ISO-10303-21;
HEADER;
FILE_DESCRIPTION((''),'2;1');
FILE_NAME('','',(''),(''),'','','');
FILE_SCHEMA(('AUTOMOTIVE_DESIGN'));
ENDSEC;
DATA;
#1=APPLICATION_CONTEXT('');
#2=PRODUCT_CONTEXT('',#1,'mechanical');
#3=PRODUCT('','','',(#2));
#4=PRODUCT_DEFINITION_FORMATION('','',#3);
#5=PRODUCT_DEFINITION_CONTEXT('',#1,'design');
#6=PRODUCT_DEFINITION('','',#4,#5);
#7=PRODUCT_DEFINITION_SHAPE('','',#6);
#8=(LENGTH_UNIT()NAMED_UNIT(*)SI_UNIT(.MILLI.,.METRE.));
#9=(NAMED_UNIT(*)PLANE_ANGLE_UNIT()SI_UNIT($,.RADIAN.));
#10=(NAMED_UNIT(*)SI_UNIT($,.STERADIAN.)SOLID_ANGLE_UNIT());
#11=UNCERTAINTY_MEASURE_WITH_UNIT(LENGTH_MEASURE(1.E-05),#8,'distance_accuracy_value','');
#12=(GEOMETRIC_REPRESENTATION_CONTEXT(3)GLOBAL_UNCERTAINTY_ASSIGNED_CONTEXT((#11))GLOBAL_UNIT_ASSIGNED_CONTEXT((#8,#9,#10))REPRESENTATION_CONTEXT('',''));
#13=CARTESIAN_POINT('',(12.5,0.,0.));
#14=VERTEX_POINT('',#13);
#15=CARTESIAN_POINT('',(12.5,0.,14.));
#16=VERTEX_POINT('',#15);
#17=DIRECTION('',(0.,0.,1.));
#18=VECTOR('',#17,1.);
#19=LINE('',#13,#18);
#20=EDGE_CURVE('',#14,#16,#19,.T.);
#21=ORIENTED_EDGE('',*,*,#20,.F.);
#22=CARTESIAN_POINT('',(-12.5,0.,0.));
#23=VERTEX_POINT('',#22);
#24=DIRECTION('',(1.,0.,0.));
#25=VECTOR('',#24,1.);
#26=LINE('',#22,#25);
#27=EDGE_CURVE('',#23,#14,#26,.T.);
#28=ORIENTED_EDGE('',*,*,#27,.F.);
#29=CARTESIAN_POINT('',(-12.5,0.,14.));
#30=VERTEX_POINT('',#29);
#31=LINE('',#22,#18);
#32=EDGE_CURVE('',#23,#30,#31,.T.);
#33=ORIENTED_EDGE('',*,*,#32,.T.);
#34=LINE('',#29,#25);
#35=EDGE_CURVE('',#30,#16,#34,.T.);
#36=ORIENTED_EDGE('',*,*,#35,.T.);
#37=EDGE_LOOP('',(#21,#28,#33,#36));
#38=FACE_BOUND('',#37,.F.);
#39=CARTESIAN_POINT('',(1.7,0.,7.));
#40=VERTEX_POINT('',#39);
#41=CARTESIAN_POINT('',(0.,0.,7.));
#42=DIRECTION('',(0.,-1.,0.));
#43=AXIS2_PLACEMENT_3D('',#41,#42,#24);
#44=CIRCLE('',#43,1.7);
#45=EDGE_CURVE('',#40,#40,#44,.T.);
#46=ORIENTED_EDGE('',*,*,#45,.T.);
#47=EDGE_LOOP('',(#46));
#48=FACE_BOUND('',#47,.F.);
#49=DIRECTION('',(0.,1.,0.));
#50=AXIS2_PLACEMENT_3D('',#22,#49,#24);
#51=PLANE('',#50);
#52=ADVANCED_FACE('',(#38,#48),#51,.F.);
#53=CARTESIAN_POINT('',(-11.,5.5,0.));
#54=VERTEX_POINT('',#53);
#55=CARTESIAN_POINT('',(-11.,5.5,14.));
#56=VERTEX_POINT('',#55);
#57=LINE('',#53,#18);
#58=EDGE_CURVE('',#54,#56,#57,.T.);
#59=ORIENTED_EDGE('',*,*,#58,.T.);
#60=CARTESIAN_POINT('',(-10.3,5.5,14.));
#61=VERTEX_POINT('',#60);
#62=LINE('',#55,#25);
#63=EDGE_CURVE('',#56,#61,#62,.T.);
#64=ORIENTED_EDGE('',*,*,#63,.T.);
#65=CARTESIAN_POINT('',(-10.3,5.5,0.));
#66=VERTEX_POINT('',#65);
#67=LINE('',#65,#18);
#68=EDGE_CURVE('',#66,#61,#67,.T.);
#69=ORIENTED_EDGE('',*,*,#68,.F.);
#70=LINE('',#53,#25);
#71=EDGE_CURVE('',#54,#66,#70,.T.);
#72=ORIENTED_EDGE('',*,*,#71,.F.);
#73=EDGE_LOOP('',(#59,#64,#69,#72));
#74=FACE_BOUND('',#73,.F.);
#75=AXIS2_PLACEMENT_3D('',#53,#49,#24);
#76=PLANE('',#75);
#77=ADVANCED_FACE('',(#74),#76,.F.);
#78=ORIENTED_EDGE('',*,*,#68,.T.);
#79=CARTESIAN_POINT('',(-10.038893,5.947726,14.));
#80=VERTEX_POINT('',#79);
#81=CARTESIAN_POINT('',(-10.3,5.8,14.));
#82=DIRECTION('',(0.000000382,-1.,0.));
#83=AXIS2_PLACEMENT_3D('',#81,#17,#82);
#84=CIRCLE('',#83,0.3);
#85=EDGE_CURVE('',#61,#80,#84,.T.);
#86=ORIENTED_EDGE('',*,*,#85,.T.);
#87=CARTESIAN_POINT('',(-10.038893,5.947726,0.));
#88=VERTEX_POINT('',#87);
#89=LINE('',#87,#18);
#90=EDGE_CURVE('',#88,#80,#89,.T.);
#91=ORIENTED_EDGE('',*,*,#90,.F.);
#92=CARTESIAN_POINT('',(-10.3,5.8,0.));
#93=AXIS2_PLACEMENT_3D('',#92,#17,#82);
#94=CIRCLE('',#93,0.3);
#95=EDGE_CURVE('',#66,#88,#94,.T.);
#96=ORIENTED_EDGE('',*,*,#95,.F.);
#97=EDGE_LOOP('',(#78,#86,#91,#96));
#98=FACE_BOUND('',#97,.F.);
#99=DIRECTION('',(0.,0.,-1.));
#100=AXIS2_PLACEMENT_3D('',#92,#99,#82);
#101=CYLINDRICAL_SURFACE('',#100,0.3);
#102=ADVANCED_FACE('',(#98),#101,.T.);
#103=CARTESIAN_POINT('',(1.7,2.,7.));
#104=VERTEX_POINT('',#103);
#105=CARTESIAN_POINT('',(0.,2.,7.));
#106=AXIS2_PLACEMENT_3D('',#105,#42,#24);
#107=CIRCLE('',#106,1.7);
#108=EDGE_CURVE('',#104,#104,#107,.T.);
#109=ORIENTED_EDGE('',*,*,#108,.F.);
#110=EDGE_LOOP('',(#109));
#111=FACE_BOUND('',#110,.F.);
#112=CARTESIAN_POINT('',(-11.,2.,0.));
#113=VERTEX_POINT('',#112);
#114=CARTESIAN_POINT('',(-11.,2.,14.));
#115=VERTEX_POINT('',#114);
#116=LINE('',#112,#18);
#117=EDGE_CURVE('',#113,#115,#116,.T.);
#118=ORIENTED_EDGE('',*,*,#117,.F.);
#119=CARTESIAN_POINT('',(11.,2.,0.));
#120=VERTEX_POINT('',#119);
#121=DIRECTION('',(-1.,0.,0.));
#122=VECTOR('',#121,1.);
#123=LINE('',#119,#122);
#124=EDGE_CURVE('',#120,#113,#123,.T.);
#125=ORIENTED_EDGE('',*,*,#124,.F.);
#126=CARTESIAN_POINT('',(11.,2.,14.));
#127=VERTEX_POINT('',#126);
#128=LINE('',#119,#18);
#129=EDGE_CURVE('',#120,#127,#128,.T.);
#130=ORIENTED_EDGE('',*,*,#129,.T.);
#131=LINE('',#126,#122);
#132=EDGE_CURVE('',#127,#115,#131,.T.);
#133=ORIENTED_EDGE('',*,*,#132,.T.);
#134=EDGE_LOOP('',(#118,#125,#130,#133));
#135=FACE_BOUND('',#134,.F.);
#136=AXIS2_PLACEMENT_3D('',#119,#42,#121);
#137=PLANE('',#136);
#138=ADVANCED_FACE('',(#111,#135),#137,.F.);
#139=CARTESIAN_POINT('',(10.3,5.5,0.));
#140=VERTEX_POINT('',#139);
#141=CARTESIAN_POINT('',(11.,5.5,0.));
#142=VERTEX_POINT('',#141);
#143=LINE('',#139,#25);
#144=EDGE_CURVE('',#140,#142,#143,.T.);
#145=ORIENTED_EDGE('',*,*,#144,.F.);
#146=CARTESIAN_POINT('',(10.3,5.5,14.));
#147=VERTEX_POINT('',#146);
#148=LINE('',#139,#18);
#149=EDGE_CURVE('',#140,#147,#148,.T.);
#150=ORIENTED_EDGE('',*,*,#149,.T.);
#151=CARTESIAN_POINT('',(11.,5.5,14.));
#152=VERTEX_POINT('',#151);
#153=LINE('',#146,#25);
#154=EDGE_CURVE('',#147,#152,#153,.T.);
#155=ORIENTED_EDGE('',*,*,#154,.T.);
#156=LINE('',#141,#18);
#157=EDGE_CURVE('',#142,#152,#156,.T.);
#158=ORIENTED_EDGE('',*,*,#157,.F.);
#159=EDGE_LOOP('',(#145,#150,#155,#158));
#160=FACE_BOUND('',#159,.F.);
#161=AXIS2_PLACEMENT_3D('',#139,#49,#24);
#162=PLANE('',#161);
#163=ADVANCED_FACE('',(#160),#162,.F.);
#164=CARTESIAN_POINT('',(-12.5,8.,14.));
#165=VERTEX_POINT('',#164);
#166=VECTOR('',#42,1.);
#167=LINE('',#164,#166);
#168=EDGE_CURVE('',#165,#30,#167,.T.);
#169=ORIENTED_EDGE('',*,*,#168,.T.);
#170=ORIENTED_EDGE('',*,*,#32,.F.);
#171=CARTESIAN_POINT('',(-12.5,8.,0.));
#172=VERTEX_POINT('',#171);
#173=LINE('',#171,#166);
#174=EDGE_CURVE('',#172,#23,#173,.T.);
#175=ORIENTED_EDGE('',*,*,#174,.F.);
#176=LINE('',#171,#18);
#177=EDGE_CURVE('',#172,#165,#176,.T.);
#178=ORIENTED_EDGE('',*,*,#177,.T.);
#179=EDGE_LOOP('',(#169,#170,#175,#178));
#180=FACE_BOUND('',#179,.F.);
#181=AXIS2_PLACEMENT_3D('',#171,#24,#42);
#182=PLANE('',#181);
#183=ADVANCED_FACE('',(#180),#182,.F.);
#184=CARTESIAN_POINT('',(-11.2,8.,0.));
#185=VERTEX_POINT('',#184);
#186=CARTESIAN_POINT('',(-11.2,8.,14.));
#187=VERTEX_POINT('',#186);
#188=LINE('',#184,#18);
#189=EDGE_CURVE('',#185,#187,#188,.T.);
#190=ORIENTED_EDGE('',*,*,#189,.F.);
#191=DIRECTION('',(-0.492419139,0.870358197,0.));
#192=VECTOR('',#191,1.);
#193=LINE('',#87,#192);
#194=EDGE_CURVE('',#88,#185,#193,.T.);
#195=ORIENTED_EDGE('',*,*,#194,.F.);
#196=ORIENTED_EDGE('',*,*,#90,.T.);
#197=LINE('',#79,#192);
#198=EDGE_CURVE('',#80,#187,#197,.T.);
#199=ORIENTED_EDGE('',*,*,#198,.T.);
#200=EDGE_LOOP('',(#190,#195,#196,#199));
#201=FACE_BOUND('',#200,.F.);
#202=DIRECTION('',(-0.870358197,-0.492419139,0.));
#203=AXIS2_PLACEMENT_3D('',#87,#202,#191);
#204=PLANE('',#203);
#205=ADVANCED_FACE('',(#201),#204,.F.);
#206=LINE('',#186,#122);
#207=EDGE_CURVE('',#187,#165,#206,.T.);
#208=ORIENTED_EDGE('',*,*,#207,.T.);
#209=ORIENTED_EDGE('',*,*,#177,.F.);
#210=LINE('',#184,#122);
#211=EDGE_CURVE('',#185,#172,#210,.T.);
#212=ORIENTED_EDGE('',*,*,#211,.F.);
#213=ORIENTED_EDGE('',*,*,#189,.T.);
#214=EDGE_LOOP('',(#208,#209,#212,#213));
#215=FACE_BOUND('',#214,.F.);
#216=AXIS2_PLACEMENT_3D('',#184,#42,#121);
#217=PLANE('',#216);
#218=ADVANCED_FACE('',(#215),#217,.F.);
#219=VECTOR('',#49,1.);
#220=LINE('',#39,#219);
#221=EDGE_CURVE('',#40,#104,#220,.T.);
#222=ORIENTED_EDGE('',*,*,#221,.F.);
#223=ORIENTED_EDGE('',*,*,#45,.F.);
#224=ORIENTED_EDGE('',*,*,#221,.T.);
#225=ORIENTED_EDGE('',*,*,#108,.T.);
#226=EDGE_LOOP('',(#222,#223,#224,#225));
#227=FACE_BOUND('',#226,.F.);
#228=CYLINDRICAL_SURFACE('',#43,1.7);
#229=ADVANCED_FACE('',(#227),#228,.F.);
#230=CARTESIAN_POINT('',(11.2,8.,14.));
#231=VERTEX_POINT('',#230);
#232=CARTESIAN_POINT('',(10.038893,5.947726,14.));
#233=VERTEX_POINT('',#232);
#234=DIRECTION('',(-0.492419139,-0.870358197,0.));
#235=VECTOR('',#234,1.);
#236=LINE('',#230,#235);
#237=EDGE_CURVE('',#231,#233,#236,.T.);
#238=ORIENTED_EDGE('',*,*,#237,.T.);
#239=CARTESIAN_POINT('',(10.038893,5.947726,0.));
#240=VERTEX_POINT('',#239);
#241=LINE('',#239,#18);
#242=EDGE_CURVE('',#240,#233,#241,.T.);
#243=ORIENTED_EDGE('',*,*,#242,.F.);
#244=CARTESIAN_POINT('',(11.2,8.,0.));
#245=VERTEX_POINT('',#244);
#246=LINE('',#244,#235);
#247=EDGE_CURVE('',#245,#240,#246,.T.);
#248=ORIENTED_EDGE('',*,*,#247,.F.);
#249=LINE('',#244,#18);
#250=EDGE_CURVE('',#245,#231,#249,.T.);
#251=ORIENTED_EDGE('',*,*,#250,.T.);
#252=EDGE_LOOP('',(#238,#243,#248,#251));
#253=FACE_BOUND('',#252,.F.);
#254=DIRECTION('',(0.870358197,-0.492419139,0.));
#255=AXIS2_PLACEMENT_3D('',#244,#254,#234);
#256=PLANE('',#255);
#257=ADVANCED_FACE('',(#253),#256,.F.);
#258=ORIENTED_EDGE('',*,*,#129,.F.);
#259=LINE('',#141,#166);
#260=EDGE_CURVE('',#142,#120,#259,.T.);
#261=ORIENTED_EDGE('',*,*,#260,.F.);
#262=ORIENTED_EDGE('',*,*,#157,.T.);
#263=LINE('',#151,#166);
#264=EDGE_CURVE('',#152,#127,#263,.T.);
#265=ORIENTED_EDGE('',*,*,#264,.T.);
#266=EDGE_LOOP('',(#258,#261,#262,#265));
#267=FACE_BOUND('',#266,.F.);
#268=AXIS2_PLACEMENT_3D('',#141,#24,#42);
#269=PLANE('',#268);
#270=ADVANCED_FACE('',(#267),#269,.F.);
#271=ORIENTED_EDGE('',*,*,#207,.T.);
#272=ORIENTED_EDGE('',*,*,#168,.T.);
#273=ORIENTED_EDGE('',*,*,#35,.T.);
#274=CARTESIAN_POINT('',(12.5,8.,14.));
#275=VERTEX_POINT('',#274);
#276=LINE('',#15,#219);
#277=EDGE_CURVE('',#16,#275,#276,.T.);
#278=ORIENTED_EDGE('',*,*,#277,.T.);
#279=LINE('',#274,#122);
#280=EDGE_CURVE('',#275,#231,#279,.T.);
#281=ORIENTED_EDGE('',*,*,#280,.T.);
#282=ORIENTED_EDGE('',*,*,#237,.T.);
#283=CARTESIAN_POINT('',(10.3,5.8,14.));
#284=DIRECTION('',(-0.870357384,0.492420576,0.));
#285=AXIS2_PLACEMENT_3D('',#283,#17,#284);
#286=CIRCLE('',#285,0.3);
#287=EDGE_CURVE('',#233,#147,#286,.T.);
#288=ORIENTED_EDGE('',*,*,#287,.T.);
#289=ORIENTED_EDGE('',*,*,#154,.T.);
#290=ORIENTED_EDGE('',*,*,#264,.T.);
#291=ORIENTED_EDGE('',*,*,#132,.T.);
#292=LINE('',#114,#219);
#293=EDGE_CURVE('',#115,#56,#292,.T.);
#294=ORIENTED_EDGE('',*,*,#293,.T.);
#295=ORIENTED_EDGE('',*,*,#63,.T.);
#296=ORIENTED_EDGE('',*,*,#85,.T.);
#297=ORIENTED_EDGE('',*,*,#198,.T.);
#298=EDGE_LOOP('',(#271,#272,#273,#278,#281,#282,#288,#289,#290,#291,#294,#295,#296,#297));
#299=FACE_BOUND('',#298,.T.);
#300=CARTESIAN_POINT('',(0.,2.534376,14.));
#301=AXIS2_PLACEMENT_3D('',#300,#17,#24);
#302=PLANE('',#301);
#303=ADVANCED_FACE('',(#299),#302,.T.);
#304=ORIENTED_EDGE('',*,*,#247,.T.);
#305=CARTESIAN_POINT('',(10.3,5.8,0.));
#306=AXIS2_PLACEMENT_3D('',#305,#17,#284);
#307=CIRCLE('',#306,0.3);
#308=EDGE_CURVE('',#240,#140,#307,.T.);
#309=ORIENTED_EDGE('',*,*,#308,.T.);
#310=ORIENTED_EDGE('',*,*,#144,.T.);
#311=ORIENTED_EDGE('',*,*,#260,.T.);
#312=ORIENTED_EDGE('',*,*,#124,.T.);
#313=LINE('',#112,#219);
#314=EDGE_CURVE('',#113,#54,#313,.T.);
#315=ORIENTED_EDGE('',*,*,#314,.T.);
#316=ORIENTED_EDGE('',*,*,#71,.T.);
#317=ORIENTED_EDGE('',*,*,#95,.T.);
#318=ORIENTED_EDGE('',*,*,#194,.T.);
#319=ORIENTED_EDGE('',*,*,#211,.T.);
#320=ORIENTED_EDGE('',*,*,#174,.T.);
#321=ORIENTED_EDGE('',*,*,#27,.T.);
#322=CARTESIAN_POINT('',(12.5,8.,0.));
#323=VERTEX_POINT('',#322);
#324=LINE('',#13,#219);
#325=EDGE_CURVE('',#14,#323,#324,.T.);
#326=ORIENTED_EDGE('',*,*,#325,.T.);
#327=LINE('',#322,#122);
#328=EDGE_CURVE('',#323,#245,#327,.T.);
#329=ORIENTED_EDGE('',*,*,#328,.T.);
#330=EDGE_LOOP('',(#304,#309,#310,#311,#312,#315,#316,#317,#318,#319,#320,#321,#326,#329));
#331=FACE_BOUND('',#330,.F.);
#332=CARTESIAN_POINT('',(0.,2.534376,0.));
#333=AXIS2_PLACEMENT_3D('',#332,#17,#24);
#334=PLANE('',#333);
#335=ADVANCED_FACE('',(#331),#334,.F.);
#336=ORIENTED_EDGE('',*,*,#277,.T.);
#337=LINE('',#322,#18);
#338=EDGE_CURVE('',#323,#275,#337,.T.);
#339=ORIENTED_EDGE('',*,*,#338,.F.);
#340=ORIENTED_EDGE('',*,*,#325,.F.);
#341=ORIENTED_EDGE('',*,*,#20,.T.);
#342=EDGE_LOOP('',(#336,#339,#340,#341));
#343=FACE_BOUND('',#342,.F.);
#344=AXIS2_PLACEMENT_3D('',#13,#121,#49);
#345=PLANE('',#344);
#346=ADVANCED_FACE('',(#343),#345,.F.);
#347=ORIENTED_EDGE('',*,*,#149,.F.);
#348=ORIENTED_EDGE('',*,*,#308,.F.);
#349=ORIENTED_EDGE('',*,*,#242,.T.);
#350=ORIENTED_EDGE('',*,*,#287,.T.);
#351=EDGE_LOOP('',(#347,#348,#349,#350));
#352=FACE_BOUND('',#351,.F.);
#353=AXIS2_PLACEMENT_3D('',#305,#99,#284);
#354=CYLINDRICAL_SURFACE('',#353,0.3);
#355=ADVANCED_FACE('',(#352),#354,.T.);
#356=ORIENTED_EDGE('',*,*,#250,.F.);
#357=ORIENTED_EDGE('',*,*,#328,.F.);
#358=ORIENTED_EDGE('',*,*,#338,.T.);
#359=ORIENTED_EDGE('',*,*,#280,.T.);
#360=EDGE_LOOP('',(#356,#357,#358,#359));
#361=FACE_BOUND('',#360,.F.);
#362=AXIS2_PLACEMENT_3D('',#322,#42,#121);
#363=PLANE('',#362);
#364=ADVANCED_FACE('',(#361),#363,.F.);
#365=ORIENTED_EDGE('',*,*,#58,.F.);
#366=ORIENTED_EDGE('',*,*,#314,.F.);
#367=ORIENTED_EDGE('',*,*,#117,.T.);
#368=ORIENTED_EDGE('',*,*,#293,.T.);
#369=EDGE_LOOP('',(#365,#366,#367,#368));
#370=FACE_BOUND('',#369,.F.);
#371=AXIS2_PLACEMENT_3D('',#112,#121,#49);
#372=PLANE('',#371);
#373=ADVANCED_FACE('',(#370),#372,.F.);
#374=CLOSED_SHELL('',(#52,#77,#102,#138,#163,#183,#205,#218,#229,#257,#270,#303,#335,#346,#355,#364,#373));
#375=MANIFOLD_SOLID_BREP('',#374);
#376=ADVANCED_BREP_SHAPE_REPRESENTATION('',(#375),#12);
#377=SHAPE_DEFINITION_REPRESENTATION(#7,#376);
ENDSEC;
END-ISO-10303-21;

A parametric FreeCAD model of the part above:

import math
import FreeCAD as App
import Part
import Sketcher

doc = App.newDocument("Part")
params = doc.addObject("Spreadsheet::Sheet", "Params")
for row, (alias, value) in enumerate([
    ("sketch1_radius", "0.3 mm"),
    ("sketch1_width", "25 mm"),
    ("sketch1_width2", "22 mm"),
    ("sketch1_height", "8 mm"),
    ("sketch1_width3", "1.3 mm"),
    ("pad1_length", "14 mm"),
    ("sketch2_diameter", "3.4 mm"),
], start=1):
    params.set(f"A{row}", alias)
    params.set(f"B{row}", "=" + value)
    params.setAlias(f"B{row}", alias)

body = doc.addObject("PartDesign::Body", "Body")

sketch1 = doc.addObject("Sketcher::SketchObject", "Sketch")
body.addObject(sketch1)
sketch1.AttachmentSupport = (doc.XY_Plane, [""])
sketch1.MapMode = "FlatFace"
sketch1.addGeometry(Part.LineSegment(App.Vector(-12.5, 0, 0), App.Vector(12.5, 0, 0)), False)
sketch1.addGeometry(Part.LineSegment(App.Vector(12.5, 0, 0), App.Vector(12.5, 8, 0)), False)
sketch1.addGeometry(Part.LineSegment(App.Vector(12.5, 8, 0), App.Vector(11.2, 8, 0)), False)
sketch1.addGeometry(Part.LineSegment(App.Vector(11.2, 8, 0), App.Vector(10.04, 5.95, 0)), False)
sketch1.addGeometry(Part.ArcOfCircle(Part.Circle(App.Vector(10.3, 5.8, 0), App.Vector(0, 0, 1), 0.3), math.radians(151), math.radians(270)), False)
sketch1.addGeometry(Part.LineSegment(App.Vector(10.3, 5.5, 0), App.Vector(11, 5.5, 0)), False)
sketch1.addGeometry(Part.LineSegment(App.Vector(11, 5.5, 0), App.Vector(11, 2, 0)), False)
sketch1.addGeometry(Part.LineSegment(App.Vector(11, 2, 0), App.Vector(-11, 2, 0)), False)
sketch1.addGeometry(Part.LineSegment(App.Vector(-11, 2, 0), App.Vector(-11, 5.5, 0)), False)
sketch1.addGeometry(Part.LineSegment(App.Vector(-11, 5.5, 0), App.Vector(-10.3, 5.5, 0)), False)
sketch1.addGeometry(Part.ArcOfCircle(Part.Circle(App.Vector(-10.3, 5.8, 0), App.Vector(0, 0, 1), 0.3), math.radians(-90), math.radians(29)), False)
sketch1.addGeometry(Part.LineSegment(App.Vector(-10.04, 5.95, 0), App.Vector(-11.2, 8, 0)), False)
sketch1.addGeometry(Part.LineSegment(App.Vector(-11.2, 8, 0), App.Vector(-12.5, 8, 0)), False)
sketch1.addGeometry(Part.LineSegment(App.Vector(-12.5, 8, 0), App.Vector(-12.5, 0, 0)), False)
sketch1.addConstraint(Sketcher.Constraint("Coincident", 0, 2, 1, 1))
sketch1.addConstraint(Sketcher.Constraint("Coincident", 1, 2, 2, 1))
sketch1.addConstraint(Sketcher.Constraint("Coincident", 2, 2, 3, 1))
sketch1.addConstraint(Sketcher.Constraint("Tangent", 3, 2, 4, 1))
sketch1.addConstraint(Sketcher.Constraint("Tangent", 4, 2, 5, 1))
sketch1.addConstraint(Sketcher.Constraint("Coincident", 5, 2, 6, 1))
sketch1.addConstraint(Sketcher.Constraint("Coincident", 6, 2, 7, 1))
sketch1.addConstraint(Sketcher.Constraint("Coincident", 7, 2, 8, 1))
sketch1.addConstraint(Sketcher.Constraint("Coincident", 8, 2, 9, 1))
sketch1.addConstraint(Sketcher.Constraint("Tangent", 9, 2, 10, 1))
sketch1.addConstraint(Sketcher.Constraint("Tangent", 10, 2, 11, 1))
sketch1.addConstraint(Sketcher.Constraint("Coincident", 11, 2, 12, 1))
sketch1.addConstraint(Sketcher.Constraint("Coincident", 12, 2, 13, 1))
sketch1.addConstraint(Sketcher.Constraint("Coincident", 13, 2, 0, 1))
sketch1.addConstraint(Sketcher.Constraint("Horizontal", 0))
sketch1.addConstraint(Sketcher.Constraint("Vertical", 1))
sketch1.addConstraint(Sketcher.Constraint("Horizontal", 2))
sketch1.addConstraint(Sketcher.Constraint("Horizontal", 5))
sketch1.addConstraint(Sketcher.Constraint("Vertical", 6))
sketch1.addConstraint(Sketcher.Constraint("Horizontal", 7))
sketch1.addConstraint(Sketcher.Constraint("Vertical", 8))
sketch1.addConstraint(Sketcher.Constraint("Horizontal", 9))
sketch1.addConstraint(Sketcher.Constraint("Horizontal", 12))
sketch1.addConstraint(Sketcher.Constraint("Vertical", 13))
sketch1.addConstraint(Sketcher.Constraint("Equal", 4, 10))
sketch1.addConstraint(Sketcher.Constraint("Symmetric", 0, 2, 13, 2, -1, 1))
sketch1.addConstraint(Sketcher.Constraint("Symmetric", 4, 3, 10, 3, -2))
sketch1.addConstraint(Sketcher.Constraint("Symmetric", 2, 2, 11, 2, -2))
sketch1.addConstraint(Sketcher.Constraint("Equal", 5, 9))
sketch1.addConstraint(Sketcher.Constraint("Radius", 4, 0.3))
sketch1.addConstraint(Sketcher.Constraint("DistanceX", 0, 1, 0, 2, 25.0))
sketch1.addConstraint(Sketcher.Constraint("DistanceX", 7, 2, 7, 1, 22.0))
sketch1.addConstraint(Sketcher.Constraint("DistanceY", 1, 1, 1, 2, 8.0))
sketch1.addConstraint(Sketcher.Constraint("DistanceX", 2, 2, 2, 1, 1.3))
sketch1.addConstraint(Sketcher.Constraint("DistanceX", 5, 1, 5, 2, 0.7))
sketch1.addConstraint(Sketcher.Constraint("DistanceY", 6, 2, 6, 1, 3.5))
sketch1.addConstraint(Sketcher.Constraint("DistanceY", -1, 1, 6, 2, 2.0))
sketch1.setExpression("Constraints[29]", "Params.sketch1_radius")
sketch1.setExpression("Constraints[30]", "Params.sketch1_width")
sketch1.setExpression("Constraints[31]", "Params.sketch1_width2")
sketch1.setExpression("Constraints[32]", "Params.sketch1_height")
sketch1.setExpression("Constraints[33]", "Params.sketch1_width3")
pad1 = doc.addObject("PartDesign::Pad", "Pad")
body.addObject(pad1)
pad1.Profile = sketch1
pad1.setExpression("Length", "Params.pad1_length")

sketch2 = doc.addObject("Sketcher::SketchObject", "Sketch001")
body.addObject(sketch2)
sketch2.AttachmentSupport = (doc.XZ_Plane, [""])
sketch2.MapMode = "FlatFace"
sketch2.addGeometry(Part.Circle(App.Vector(0, 7, 0), App.Vector(0, 0, 1), 1.7), False)
sketch2.addConstraint(Sketcher.Constraint("PointOnObject", 0, 3, -2))
sketch2.addConstraint(Sketcher.Constraint("Diameter", 0, 3.4))
sketch2.addConstraint(Sketcher.Constraint("DistanceY", -1, 1, 0, 3, 7.0))
sketch2.setExpression("Constraints[1]", "Params.sketch2_diameter")
pocket1 = doc.addObject("PartDesign::Pocket", "Pocket")
body.addObject(pocket1)
pocket1.Profile = sketch2
pocket1.Type = "ThroughAll"

doc.recompute()
